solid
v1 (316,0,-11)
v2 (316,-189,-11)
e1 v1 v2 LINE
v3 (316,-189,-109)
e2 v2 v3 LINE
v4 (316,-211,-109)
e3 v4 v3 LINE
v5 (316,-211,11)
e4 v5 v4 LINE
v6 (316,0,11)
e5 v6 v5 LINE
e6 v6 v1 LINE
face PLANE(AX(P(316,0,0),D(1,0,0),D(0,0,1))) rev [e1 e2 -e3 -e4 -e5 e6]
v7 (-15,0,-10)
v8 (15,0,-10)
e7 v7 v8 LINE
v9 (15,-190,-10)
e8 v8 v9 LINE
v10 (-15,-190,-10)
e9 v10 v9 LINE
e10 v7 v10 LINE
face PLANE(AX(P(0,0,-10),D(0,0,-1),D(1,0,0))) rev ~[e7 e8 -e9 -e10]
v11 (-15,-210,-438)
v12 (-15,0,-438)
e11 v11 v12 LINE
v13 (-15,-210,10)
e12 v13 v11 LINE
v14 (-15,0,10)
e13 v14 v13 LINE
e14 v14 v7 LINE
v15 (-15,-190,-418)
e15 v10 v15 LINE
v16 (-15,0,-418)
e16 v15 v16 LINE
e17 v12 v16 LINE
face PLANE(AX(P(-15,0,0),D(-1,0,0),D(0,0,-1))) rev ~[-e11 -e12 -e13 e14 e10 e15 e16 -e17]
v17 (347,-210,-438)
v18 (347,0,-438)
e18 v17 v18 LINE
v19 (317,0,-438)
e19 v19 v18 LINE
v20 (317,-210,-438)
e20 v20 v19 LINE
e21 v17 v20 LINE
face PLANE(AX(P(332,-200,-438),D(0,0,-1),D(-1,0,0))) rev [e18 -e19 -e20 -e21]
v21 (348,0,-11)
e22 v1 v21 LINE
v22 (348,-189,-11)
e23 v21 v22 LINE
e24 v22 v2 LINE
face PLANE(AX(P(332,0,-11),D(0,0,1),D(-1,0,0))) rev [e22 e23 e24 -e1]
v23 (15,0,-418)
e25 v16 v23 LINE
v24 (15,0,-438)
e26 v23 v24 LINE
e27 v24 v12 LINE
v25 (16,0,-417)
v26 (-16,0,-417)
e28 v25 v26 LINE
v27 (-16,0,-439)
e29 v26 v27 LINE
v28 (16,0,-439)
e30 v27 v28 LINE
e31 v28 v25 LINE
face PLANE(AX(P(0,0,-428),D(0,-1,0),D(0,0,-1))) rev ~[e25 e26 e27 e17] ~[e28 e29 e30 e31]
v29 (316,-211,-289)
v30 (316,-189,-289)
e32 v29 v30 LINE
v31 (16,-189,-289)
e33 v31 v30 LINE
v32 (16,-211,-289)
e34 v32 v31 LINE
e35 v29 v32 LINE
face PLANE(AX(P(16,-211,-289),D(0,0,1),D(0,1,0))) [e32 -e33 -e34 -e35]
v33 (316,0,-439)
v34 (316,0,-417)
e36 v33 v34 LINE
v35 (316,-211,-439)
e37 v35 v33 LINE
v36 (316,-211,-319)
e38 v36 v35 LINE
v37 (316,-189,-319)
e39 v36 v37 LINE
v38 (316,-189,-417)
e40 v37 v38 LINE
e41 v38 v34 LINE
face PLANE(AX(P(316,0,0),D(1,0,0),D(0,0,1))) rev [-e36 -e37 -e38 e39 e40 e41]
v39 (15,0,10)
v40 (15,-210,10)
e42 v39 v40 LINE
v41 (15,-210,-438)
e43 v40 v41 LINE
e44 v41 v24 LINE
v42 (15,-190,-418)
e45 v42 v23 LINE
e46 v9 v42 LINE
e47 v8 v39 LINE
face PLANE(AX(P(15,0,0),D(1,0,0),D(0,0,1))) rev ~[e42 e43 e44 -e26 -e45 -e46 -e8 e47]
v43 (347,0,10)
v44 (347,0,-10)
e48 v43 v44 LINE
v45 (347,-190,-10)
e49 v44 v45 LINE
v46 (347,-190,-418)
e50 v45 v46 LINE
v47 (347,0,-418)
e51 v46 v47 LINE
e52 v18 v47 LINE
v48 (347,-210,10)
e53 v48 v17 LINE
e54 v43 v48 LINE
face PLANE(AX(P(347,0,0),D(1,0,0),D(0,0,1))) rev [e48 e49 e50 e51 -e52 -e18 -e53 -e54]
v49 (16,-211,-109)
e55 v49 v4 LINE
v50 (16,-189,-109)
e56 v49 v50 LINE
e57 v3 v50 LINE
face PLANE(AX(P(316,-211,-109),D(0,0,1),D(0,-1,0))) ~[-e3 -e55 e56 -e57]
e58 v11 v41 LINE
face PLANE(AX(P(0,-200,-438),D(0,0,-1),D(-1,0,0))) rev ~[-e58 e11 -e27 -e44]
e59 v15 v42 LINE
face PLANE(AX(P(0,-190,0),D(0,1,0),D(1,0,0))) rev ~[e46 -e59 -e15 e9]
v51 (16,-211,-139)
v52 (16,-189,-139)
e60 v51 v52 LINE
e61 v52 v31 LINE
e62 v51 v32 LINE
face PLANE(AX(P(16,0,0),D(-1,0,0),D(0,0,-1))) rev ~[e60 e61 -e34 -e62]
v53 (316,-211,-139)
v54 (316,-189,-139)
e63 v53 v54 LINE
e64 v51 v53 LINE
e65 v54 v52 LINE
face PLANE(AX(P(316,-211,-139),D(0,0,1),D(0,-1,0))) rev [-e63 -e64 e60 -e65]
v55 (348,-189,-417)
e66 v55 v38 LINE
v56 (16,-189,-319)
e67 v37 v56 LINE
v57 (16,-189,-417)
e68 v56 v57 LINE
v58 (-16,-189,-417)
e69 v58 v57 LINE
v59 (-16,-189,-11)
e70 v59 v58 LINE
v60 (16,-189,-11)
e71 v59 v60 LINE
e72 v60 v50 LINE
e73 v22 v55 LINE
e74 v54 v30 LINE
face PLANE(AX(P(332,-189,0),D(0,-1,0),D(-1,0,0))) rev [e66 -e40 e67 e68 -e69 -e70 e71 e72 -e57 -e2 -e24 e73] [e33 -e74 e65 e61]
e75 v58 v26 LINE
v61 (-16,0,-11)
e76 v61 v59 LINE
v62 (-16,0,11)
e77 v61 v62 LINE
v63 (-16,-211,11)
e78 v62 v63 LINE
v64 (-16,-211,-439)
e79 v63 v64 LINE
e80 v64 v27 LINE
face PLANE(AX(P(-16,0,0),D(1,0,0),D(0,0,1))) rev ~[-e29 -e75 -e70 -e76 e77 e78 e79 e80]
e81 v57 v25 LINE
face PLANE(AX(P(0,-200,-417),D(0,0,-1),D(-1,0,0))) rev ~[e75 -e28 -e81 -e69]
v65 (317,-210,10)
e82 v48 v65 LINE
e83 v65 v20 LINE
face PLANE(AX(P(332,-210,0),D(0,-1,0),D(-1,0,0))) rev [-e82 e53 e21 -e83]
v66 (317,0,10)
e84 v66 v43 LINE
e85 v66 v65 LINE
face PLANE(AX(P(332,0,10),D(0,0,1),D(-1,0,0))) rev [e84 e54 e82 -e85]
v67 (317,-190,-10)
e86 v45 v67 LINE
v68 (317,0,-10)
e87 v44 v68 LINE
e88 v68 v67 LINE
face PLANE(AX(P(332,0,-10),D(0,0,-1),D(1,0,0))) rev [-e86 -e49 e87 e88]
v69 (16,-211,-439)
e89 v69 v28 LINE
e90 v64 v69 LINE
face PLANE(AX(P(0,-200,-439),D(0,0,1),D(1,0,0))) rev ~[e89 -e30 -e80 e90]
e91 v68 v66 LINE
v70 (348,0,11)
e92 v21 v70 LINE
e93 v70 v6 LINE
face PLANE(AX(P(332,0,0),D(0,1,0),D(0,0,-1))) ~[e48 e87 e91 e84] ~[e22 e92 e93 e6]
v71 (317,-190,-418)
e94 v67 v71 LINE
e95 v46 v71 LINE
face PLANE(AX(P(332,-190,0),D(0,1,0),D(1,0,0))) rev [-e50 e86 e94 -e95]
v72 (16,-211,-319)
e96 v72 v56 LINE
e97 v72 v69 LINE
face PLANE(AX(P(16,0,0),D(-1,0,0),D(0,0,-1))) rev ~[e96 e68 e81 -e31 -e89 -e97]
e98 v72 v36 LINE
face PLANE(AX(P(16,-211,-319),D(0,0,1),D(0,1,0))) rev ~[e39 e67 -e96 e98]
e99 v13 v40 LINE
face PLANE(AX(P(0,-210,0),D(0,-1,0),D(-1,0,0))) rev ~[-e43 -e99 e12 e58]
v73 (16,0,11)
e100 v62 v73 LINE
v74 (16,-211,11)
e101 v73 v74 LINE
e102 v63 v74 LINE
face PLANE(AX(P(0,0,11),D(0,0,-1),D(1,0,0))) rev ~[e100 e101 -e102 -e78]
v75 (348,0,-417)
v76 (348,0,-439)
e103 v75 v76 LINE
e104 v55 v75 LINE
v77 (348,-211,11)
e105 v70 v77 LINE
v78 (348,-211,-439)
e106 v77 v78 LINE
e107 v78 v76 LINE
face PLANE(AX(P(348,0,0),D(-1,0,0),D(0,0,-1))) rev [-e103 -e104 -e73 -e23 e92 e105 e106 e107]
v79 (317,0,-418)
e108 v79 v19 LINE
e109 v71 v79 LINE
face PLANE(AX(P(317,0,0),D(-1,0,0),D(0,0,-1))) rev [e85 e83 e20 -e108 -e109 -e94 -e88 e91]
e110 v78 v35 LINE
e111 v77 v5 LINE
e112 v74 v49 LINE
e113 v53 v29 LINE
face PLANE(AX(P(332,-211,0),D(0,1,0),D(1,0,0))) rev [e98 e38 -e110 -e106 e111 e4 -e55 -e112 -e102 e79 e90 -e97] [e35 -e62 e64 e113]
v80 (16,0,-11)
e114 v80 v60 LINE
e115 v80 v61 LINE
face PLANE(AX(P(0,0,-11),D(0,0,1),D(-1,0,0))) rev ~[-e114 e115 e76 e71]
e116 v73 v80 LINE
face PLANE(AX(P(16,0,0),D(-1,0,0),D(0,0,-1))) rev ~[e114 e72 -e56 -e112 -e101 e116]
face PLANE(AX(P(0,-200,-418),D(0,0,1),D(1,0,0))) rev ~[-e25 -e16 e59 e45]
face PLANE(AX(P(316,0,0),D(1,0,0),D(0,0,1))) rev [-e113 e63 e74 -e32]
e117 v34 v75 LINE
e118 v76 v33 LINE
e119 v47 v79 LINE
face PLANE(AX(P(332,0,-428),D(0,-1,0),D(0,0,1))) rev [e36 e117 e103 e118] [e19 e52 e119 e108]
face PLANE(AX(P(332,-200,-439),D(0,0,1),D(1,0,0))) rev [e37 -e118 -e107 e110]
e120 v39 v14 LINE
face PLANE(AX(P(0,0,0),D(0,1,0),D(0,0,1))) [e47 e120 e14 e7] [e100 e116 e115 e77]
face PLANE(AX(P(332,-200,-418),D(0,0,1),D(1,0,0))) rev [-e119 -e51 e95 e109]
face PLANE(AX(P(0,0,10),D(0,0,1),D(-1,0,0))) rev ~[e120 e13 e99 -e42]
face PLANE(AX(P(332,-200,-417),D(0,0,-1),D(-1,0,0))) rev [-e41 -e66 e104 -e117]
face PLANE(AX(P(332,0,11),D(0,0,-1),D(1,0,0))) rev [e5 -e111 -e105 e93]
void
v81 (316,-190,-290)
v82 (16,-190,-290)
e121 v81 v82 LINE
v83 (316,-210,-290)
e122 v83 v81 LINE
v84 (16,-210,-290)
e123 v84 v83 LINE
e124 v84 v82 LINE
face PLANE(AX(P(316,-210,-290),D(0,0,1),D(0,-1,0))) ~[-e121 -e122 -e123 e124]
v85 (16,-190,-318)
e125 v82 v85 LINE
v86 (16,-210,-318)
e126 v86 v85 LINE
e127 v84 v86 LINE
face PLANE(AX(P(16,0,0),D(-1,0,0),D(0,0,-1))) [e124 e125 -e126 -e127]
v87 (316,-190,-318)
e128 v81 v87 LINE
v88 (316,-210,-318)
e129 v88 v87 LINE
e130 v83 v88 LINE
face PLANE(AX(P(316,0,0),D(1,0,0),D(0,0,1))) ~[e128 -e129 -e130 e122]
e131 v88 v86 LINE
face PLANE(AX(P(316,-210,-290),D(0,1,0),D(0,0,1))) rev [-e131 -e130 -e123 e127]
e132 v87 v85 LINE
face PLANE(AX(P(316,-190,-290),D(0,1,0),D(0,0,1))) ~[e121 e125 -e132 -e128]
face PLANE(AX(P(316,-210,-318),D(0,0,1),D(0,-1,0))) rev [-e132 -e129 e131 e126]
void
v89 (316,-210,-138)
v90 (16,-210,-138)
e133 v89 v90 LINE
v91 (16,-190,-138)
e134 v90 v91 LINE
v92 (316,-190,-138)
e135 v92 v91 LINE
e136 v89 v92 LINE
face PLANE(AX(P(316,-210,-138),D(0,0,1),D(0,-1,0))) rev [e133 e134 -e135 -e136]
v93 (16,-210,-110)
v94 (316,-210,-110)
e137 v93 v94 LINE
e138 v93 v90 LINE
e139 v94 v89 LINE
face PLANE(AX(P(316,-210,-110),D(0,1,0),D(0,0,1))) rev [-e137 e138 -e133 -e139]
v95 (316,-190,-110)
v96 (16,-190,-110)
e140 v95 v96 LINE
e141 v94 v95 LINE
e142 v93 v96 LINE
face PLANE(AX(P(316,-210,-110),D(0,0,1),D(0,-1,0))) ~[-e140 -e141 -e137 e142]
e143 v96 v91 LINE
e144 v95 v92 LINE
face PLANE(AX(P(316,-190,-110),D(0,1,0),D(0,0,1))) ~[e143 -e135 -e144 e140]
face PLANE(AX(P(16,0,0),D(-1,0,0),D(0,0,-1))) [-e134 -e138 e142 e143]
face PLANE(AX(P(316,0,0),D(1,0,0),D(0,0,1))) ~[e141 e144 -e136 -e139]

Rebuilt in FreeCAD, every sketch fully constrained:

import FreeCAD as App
import Part
import Sketcher
from FreeCAD import Vector
Q = App.Units.Quantity


def add_polygon(sketch, points):
    """Adds a closed chain of lines whose ends are joined by coincident constraints."""
    first, n = sketch.GeometryCount, len(points)
    for a, b in zip(points, points[1:] + points[:1]):
        sketch.addGeometry(Part.LineSegment(App.Vector(*a, 0), App.Vector(*b, 0)), False)
    for i in range(n):
        sketch.addConstraint(Sketcher.Constraint("Coincident", first + i, 2, first + (i + 1) % n, 1))

doc = App.newDocument("Part")
body = doc.addObject("PartDesign::Body", "Body")

# Sketch on XZ plane
sketch1 = doc.addObject("Sketcher::SketchObject", "Sketch")
body.addObject(sketch1)
sketch1.AttachmentSupport = (doc.XZ_Plane, [""])
sketch1.MapMode = "FlatFace"
add_polygon(sketch1, [(-16, -11), (-16, 11), (16, 11), (16, -11)])  # lines 0-3
add_polygon(sketch1, [(15, 10), (-15, 10), (-15, -10), (15, -10)])  # lines 4-7
sketch1.addConstraint([
    Sketcher.Constraint("Vertical", 0),
    Sketcher.Constraint("Horizontal", 1),
    Sketcher.Constraint("Vertical", 2),
    Sketcher.Constraint("Horizontal", 3),
    Sketcher.Constraint("Horizontal", 4),
    Sketcher.Constraint("Vertical", 5),
    Sketcher.Constraint("Horizontal", 6),
    Sketcher.Constraint("Vertical", 7),
    Sketcher.Constraint("Symmetric", 0, 2, 2, 2, -1, 1),
    Sketcher.Constraint("Symmetric", 4, 2, 6, 2, -1, 1),
    Sketcher.Constraint("DistanceX", 1, 1, 1, 2, Q("32 mm")),
    Sketcher.Constraint("DistanceX", 4, 2, 4, 1, Q("30 mm")),
    Sketcher.Constraint("DistanceY", 0, 1, 0, 2, Q("22 mm")),
    Sketcher.Constraint("DistanceY", 5, 2, 5, 1, Q("20 mm")),
])

# Sketch on YZ plane
sketch2 = doc.addObject("Sketcher::SketchObject", "Sketch001")
body.addObject(sketch2)
sketch2.AttachmentSupport = (doc.YZ_Plane, [""])
sketch2.MapMode = "FlatFace"
sketch2.addGeometry([
    Part.LineSegment(Vector(0, 0, 0), Vector(-200, 0, 0)),
    Part.LineSegment(Vector(-200, 0, 0), Vector(-200, -428, 0)),
    Part.LineSegment(Vector(-200, -428, 0), Vector(0, -428, 0)),
], False)
sketch2.addConstraint([
    Sketcher.Constraint("Coincident", 0, 2, 1, 1),
    Sketcher.Constraint("Coincident", 1, 2, 2, 1),
    Sketcher.Constraint("Horizontal", 0),
    Sketcher.Constraint("Vertical", 1),
    Sketcher.Constraint("Horizontal", 2),
    Sketcher.Constraint("Coincident", 0, 1, -1, 1),
    Sketcher.Constraint("PointOnObject", 2, 2, -2),
    Sketcher.Constraint("DistanceX", 0, 2, 0, 1, Q("200 mm")),
    Sketcher.Constraint("DistanceY", 1, 2, 1, 1, Q("428 mm")),
])
doc.recompute()

additivepipe = doc.addObject("PartDesign::AdditivePipe", "AdditivePipe")
body.addObject(additivepipe)
additivepipe.Profile = sketch1
additivepipe.Spine = (sketch2, ["Edge1", "Edge2", "Edge3"])
additivepipe.Transition = "Right corner"

# Sketch on YZ plane
sketch3 = doc.addObject("Sketcher::SketchObject", "Sketch002")
body.addObject(sketch3)
sketch3.AttachmentSupport = (doc.YZ_Plane, [""])
sketch3.MapMode = "FlatFace"
sketch3.AttachmentOffset = App.Placement(Vector(0, 0, 16), App.Rotation())
add_polygon(sketch3, [(-189, -109), (-211, -109), (-211, -139), (-189, -139)])  # lines 0-3
add_polygon(sketch3, [(-210, -138), (-210, -110), (-190, -110), (-190, -138)])  # lines 4-7
add_polygon(sketch3, [(-189, -289), (-211, -289), (-211, -319), (-189, -319)])  # lines 8-11
add_polygon(sketch3, [(-210, -318), (-210, -290), (-190, -290), (-190, -318)])  # lines 12-15
sketch3.addConstraint([
    Sketcher.Constraint("Horizontal", 0),
    Sketcher.Constraint("Vertical", 1),
    Sketcher.Constraint("Horizontal", 2),
    Sketcher.Constraint("Vertical", 3),
    Sketcher.Constraint("Vertical", 4),
    Sketcher.Constraint("Horizontal", 5),
    Sketcher.Constraint("Vertical", 6),
    Sketcher.Constraint("Horizontal", 7),
    Sketcher.Constraint("Horizontal", 8),
    Sketcher.Constraint("Vertical", 9),
    Sketcher.Constraint("Horizontal", 10),
    Sketcher.Constraint("Vertical", 11),
    Sketcher.Constraint("Vertical", 12),
    Sketcher.Constraint("Horizontal", 13),
    Sketcher.Constraint("Vertical", 14),
    Sketcher.Constraint("Horizontal", 15),
    Sketcher.Constraint("Vertical", 1, 2, 8, 2),
    Sketcher.Constraint("Vertical", 3, 2, 10, 2),
    Sketcher.Constraint("Vertical", 7, 2, 12, 2),
    Sketcher.Constraint("Vertical", 6, 2, 13, 2),
    Sketcher.Constraint("Equal", 3, 9),
    Sketcher.Constraint("Equal", 6, 12),
    Sketcher.Constraint("DistanceX", 0, 2, 0, 1, Q("22 mm")),
    Sketcher.Constraint("DistanceX", 5, 1, 5, 2, Q("20 mm")),
    Sketcher.Constraint("DistanceY", 1, 2, 1, 1, Q("30 mm")),
    Sketcher.Constraint("DistanceY", 4, 1, 4, 2, Q("28 mm")),
    Sketcher.Constraint("DistanceX", 0, 2, -1, 1, Q("211 mm")),
    Sketcher.Constraint("DistanceY", 0, 2, -1, 1, Q("109 mm")),
    Sketcher.Constraint("DistanceX", 4, 2, -1, 1, Q("210 mm")),
    Sketcher.Constraint("DistanceY", 4, 2, -1, 1, Q("110 mm")),
    Sketcher.Constraint("DistanceY", 8, 2, -1, 1, Q("289 mm")),
    Sketcher.Constraint("DistanceY", 12, 2, -1, 1, Q("290 mm")),
])
pad1 = doc.addObject("PartDesign::Pad", "Pad")
body.addObject(pad1)
pad1.Profile = sketch3
pad1.Length = 150
doc.recompute()

datumplane = doc.addObject("PartDesign::Plane", "DatumPlane")
body.addObject(datumplane)
datumplane.AttachmentSupport = (doc.YZ_Plane, [""])
datumplane.MapMode = "FlatFace"
datumplane.AttachmentOffset = App.Placement(Vector(0, 0, 166), App.Rotation())
mirrored = doc.addObject("PartDesign::Mirrored", "Mirrored")
body.addObject(mirrored)
mirrored.Originals = [pad1]
mirrored.MirrorPlane = (datumplane, [""])
body.Tip = mirrored
doc.recompute()

datumplane2 = doc.addObject("PartDesign::Plane", "DatumPlane001")
body.addObject(datumplane2)
datumplane2.AttachmentSupport = (doc.YZ_Plane, [""])
datumplane2.MapMode = "FlatFace"
datumplane2.AttachmentOffset = App.Placement(Vector(0, 0, 166), App.Rotation())
mirrored2 = doc.addObject("PartDesign::Mirrored", "Mirrored001")
body.addObject(mirrored2)
mirrored2.Originals = [additivepipe]
mirrored2.MirrorPlane = (datumplane2, [""])
body.Tip = mirrored2

doc.recompute()
